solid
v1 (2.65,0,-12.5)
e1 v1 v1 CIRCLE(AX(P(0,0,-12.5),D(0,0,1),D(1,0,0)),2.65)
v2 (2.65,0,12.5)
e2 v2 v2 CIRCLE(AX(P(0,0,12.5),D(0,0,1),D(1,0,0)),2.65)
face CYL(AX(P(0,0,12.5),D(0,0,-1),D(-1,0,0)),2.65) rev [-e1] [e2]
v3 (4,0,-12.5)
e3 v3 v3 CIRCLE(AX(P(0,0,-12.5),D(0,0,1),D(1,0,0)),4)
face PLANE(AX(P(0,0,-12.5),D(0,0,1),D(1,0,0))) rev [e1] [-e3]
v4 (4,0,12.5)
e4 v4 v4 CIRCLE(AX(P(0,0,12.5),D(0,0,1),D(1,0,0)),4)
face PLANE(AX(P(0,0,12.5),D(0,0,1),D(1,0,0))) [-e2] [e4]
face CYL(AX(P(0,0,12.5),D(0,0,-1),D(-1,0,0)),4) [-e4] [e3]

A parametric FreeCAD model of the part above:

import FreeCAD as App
import Part
import Sketcher
Q = App.Units.Quantity

doc = App.newDocument("Part")
body = doc.addObject("PartDesign::Body", "Body")

# Sketch on XY plane
sketch1 = body.newObject("Sketcher::SketchObject", "Sketch")
sketch1.AttachmentSupport = (doc.getObject("XY_Plane"), [""])
sketch1.MapMode = "FlatFace"
sketch1.addGeometry([
    Part.Circle(App.Vector(0, 0, 0), App.Vector(0, 0, 1), 4),
    Part.Circle(App.Vector(0, 0, 0), App.Vector(0, 0, 1), 2.65),
], False)
sketch1.addConstraint([
    Sketcher.Constraint("Coincident", 0, 3, -1, 1),
    Sketcher.Constraint("Coincident", 1, 3, -1, 1),
    Sketcher.Constraint("Diameter", 0, Q("8 mm")),
    Sketcher.Constraint("Diameter", 1, Q("5.3 mm")),
])
pad1 = body.newObject("PartDesign::Pad", "Pad")
pad1.Profile = sketch1
pad1.Length = 25
pad1.Midplane = True

doc.recompute()
